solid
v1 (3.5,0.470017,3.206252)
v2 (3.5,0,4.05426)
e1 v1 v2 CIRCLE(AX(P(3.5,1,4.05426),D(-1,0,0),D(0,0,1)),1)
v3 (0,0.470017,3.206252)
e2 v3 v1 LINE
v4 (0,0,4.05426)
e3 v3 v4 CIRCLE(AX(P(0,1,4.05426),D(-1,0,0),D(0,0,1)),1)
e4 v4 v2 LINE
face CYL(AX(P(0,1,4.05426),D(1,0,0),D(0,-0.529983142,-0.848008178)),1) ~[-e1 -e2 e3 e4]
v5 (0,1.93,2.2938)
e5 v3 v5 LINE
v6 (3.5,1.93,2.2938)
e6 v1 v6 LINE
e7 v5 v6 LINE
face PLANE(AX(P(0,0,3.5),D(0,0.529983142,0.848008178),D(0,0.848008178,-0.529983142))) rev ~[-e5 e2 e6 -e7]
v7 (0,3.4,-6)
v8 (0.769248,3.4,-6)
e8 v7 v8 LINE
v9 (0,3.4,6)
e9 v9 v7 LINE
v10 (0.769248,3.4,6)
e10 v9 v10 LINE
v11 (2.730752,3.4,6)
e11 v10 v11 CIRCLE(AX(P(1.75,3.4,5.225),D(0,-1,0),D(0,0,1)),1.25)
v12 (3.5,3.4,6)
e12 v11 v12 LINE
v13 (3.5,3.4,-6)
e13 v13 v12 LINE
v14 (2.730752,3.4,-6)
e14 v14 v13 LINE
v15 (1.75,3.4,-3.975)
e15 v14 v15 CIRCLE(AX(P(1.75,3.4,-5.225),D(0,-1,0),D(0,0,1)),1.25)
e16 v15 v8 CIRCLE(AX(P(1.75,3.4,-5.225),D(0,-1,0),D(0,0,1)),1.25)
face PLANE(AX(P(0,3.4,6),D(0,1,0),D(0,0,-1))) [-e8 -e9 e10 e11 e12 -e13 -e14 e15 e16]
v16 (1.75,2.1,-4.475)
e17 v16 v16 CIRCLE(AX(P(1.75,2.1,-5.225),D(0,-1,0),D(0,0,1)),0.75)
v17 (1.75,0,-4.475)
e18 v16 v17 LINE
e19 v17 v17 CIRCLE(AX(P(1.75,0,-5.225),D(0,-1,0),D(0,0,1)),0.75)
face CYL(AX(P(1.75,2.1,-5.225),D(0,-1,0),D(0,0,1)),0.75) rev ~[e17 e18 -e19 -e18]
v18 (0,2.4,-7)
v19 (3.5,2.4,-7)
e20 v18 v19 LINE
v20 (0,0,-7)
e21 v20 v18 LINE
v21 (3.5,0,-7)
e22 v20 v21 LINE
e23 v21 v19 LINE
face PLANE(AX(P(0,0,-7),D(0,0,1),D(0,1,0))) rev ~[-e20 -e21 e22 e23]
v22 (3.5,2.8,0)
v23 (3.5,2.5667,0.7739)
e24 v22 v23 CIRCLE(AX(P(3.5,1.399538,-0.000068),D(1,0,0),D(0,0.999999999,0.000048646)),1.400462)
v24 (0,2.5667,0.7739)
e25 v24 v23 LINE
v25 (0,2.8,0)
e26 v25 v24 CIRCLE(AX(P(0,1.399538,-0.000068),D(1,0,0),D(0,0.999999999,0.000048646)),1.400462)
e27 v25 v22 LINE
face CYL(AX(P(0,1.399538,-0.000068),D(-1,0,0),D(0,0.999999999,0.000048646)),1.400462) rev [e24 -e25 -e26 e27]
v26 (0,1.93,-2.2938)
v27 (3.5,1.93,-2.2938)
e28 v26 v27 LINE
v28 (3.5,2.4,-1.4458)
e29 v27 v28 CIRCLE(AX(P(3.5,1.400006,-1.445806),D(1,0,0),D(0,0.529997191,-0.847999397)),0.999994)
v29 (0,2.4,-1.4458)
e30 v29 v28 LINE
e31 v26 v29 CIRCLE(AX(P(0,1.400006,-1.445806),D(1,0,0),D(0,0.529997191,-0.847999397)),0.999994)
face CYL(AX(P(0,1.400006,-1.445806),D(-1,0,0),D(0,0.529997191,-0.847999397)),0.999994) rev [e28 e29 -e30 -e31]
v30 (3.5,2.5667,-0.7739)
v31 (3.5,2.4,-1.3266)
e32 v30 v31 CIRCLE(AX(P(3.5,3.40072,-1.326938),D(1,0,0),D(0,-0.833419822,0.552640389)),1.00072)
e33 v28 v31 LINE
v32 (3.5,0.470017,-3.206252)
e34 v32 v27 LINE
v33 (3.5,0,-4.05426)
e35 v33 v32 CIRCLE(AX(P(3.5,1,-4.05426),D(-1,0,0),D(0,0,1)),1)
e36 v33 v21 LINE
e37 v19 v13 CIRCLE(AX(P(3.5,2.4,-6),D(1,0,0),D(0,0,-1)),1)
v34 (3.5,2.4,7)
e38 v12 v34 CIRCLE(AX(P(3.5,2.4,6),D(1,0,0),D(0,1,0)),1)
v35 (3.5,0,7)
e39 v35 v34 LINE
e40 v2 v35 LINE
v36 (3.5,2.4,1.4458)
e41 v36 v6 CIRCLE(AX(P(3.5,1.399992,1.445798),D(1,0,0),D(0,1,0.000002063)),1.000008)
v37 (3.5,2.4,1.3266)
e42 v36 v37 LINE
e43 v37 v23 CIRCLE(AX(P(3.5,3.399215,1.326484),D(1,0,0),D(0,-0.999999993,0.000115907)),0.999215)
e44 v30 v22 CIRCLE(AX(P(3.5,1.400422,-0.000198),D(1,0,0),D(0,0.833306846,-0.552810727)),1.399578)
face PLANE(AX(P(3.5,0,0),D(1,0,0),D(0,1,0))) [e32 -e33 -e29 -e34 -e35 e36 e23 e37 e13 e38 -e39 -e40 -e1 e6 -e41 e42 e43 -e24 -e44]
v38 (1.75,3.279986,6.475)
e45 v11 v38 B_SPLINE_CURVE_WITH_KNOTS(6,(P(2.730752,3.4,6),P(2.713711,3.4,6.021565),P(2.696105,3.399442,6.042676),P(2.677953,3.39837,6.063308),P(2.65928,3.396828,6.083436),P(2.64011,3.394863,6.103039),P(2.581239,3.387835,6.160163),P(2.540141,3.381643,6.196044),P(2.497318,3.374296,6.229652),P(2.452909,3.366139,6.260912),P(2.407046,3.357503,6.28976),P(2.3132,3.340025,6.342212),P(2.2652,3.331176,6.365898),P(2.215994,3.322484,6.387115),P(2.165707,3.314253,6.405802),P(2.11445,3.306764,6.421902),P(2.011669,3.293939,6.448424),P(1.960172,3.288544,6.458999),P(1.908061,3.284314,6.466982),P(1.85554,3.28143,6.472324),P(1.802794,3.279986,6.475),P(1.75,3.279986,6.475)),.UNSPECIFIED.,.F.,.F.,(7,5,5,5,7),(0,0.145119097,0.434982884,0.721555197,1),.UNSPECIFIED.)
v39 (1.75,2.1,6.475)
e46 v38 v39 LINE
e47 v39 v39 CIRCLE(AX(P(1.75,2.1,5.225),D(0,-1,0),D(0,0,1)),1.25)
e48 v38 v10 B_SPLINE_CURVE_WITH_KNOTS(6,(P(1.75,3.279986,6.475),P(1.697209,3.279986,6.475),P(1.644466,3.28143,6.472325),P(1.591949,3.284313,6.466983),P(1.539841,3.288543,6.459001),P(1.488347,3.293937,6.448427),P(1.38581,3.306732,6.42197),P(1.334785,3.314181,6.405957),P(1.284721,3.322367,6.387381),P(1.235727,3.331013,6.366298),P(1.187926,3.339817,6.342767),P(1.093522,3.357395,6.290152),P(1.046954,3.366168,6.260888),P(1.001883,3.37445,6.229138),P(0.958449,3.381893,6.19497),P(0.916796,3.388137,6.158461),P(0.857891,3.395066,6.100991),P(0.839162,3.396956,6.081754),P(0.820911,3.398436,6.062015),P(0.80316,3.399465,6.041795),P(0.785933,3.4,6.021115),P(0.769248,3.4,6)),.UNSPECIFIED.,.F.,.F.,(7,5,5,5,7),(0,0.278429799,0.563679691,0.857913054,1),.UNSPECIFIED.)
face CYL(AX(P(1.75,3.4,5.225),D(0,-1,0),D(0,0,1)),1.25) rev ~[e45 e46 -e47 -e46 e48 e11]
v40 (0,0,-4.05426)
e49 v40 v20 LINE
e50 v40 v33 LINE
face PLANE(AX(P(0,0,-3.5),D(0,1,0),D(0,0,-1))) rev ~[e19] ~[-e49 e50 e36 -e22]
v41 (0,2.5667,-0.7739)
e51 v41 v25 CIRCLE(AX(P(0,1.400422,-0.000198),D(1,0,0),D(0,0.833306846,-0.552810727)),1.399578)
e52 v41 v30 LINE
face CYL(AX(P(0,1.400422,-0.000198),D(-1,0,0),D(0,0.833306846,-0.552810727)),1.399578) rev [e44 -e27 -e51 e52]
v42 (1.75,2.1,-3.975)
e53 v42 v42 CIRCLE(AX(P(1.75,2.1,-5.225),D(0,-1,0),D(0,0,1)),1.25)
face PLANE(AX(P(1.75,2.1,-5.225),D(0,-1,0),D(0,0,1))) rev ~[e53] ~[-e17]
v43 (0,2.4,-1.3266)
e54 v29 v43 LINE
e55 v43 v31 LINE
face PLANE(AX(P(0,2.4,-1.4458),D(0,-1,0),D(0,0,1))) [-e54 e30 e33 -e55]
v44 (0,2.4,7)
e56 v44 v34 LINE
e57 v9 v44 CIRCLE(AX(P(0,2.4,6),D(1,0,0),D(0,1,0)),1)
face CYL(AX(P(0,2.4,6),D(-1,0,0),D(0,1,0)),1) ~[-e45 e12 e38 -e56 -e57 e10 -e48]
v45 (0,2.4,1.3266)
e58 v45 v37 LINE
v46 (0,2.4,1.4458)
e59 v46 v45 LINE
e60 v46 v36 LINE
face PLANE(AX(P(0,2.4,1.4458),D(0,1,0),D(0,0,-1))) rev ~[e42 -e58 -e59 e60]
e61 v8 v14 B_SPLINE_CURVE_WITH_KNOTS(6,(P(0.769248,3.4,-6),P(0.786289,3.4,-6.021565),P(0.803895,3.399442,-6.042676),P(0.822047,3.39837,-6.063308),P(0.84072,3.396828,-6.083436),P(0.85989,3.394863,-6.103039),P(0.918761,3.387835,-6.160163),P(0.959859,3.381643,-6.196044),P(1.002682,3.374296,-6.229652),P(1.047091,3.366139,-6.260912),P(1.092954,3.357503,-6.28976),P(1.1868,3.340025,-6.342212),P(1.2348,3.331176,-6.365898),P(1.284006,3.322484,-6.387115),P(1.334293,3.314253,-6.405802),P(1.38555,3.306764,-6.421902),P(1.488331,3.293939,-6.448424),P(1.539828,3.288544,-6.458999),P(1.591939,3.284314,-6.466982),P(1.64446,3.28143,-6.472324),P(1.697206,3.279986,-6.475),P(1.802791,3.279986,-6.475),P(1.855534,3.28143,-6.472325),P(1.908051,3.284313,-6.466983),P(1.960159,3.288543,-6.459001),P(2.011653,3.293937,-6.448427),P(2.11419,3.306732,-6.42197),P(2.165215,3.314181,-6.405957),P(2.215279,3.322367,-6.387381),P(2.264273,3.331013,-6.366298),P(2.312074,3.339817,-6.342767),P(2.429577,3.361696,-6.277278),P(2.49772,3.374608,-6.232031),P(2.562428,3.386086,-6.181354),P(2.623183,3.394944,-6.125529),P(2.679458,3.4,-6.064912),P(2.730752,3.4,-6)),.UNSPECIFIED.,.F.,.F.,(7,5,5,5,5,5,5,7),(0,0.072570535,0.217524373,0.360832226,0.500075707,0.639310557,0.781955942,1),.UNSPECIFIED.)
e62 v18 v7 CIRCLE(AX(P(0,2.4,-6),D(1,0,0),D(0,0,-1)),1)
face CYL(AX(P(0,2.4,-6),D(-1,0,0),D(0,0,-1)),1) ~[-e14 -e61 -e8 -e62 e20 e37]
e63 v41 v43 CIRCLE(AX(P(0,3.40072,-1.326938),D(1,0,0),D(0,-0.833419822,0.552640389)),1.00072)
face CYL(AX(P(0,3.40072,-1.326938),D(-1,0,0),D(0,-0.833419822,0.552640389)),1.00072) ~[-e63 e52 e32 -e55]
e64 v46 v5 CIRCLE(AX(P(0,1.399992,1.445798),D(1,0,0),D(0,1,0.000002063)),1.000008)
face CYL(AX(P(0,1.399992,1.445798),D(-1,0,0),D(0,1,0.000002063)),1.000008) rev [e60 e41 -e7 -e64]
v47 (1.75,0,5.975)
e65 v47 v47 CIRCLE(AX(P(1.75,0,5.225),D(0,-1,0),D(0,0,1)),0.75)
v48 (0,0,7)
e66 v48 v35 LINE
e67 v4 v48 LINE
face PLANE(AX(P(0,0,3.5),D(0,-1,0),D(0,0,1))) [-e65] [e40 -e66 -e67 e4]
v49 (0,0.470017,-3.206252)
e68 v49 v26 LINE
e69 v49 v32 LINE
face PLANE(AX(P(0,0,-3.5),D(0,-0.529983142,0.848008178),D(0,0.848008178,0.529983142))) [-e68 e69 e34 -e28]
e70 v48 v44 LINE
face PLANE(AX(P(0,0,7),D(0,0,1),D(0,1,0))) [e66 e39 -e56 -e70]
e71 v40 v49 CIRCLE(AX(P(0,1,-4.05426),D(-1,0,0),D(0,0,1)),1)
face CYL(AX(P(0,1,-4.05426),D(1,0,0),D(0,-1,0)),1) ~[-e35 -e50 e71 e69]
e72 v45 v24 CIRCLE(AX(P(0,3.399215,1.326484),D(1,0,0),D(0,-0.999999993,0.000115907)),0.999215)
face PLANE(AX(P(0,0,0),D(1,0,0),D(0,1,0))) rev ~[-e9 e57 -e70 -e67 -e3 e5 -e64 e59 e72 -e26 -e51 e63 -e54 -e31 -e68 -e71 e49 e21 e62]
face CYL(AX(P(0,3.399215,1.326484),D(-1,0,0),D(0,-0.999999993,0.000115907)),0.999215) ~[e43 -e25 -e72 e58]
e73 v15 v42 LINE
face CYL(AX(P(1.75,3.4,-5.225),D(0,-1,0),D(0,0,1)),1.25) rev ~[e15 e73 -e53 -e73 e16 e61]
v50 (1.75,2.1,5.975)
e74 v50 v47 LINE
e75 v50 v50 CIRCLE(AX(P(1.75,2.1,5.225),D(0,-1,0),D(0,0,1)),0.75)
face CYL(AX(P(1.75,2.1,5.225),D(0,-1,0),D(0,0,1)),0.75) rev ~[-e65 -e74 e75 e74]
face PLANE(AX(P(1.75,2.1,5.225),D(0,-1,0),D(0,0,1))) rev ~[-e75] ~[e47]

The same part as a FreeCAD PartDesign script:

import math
import FreeCAD as App
import Part
import Sketcher

V = App.Vector


def edges_at(feature, points):
    """Names of the edges that pass closest to the given points."""
    edges = feature.Shape.Edges
    near = lambda p: min(range(len(edges)), key=lambda i: edges[i].distToShape(Part.Vertex(*p))[0])
    return sorted({f"Edge{near(p) + 1}" for p in points})

doc = App.newDocument("Part")
params = doc.addObject("Spreadsheet::Sheet", "Params")
for row, (alias, value) in enumerate([
    ("sketch1_radius", "1 mm"),
    ("sketch1_radius2", "1.4 mm"),
    ("sketch1_height", "3.5 mm"),
    ("pad1_length", "3.5 mm"),
    ("sketch2_diameter", "1.5 mm"),
    ("hole_diameter", "1.5 mm"),
    ("hole_cbore_diameter", "2.5 mm"),
    ("hole_cbore_depth", "1.3 mm"),
    ("fillet_radius", "1 mm"),
], start=1):
    params.set(f"A{row}", alias)
    params.set(f"B{row}", "=" + value)
    params.setAlias(f"B{row}", alias)

body = doc.addObject("PartDesign::Body", "Body")

sketch1 = doc.addObject("Sketcher::SketchObject", "Sketch")
body.addObject(sketch1)
sketch1.AttachmentSupport = (doc.YZ_Plane, [""])
sketch1.MapMode = "FlatFace"
sketch1.addGeometry(Part.ArcOfCircle(Part.Circle(V(1.4, 0, 0), V(0, 0, 1), 1.4), math.radians(0), math.radians(34)), False)
sketch1.addGeometry(Part.ArcOfCircle(Part.Circle(V(1.4, 0, 0), V(0, 0, 1), 1.4), math.radians(-34), math.radians(0)), False)
sketch1.addGeometry(Part.ArcOfCircle(Part.Circle(V(3.4, -1.33, 0), V(0, 0, 1), 1), math.radians(146), math.radians(180)), False)
sketch1.addGeometry(Part.LineSegment(V(2.4, -1.33, 0), V(2.4, -1.45, 0)), False)
sketch1.addGeometry(Part.ArcOfCircle(Part.Circle(V(1.4, -1.45, 0), V(0, 0, 1), 1), math.radians(-58), math.radians(0)), False)
sketch1.addGeometry(Part.LineSegment(V(1.93, -2.29, 0), V(0, -3.5, 0)), False)
sketch1.addGeometry(Part.LineSegment(V(0, -3.5, 0), V(0, -7, 0)), False)
sketch1.addGeometry(Part.LineSegment(V(0, -7, 0), V(2.4, -7, 0)), False)
sketch1.addGeometry(Part.ArcOfCircle(Part.Circle(V(2.4, -6, 0), V(0, 0, 1), 1), math.radians(-90), math.radians(0)), False)
sketch1.addGeometry(Part.LineSegment(V(3.4, -6, 0), V(3.4, 6, 0)), False)
sketch1.addGeometry(Part.ArcOfCircle(Part.Circle(V(2.4, 6, 0), V(0, 0, 1), 1), math.radians(0), math.radians(90)), False)
sketch1.addGeometry(Part.LineSegment(V(2.4, 7, 0), V(0, 7, 0)), False)
sketch1.addGeometry(Part.LineSegment(V(0, 7, 0), V(0, 3.5, 0)), False)
sketch1.addGeometry(Part.LineSegment(V(0, 3.5, 0), V(1.93, 2.29, 0)), False)
sketch1.addGeometry(Part.ArcOfCircle(Part.Circle(V(1.4, 1.45, 0), V(0, 0, 1), 1), math.radians(0), math.radians(58)), False)
sketch1.addGeometry(Part.LineSegment(V(2.4, 1.45, 0), V(2.4, 1.33, 0)), False)
sketch1.addGeometry(Part.ArcOfCircle(Part.Circle(V(3.4, 1.33, 0), V(0, 0, 1), 1), math.radians(180), math.radians(214)), False)
sketch1.addConstraint(Sketcher.Constraint("Tangent", 0, 1, 1, 2))
sketch1.addConstraint(Sketcher.Constraint("Tangent", 1, 1, 2, 1))
sketch1.addConstraint(Sketcher.Constraint("Tangent", 2, 2, 3, 1))
sketch1.addConstraint(Sketcher.Constraint("Tangent", 3, 2, 4, 2))
sketch1.addConstraint(Sketcher.Constraint("Tangent", 4, 1, 5, 1))
sketch1.addConstraint(Sketcher.Constraint("Coincident", 5, 2, 6, 1))
sketch1.addConstraint(Sketcher.Constraint("Coincident", 6, 2, 7, 1))
sketch1.addConstraint(Sketcher.Constraint("Tangent", 7, 2, 8, 1))
sketch1.addConstraint(Sketcher.Constraint("Tangent", 8, 2, 9, 1))
sketch1.addConstraint(Sketcher.Constraint("Tangent", 9, 2, 10, 1))
sketch1.addConstraint(Sketcher.Constraint("Tangent", 10, 2, 11, 1))
sketch1.addConstraint(Sketcher.Constraint("Coincident", 11, 2, 12, 1))
sketch1.addConstraint(Sketcher.Constraint("Coincident", 12, 2, 13, 1))
sketch1.addConstraint(Sketcher.Constraint("Tangent", 13, 2, 14, 2))
sketch1.addConstraint(Sketcher.Constraint("Tangent", 14, 1, 15, 1))
sketch1.addConstraint(Sketcher.Constraint("Tangent", 15, 2, 16, 1))
sketch1.addConstraint(Sketcher.Constraint("Tangent", 16, 2, 0, 2))
sketch1.addConstraint(Sketcher.Constraint("Vertical", 3))
sketch1.addConstraint(Sketcher.Constraint("Vertical", 6))
sketch1.addConstraint(Sketcher.Constraint("Horizontal", 7))
sketch1.addConstraint(Sketcher.Constraint("Vertical", 9))
sketch1.addConstraint(Sketcher.Constraint("Horizontal", 11))
sketch1.addConstraint(Sketcher.Constraint("Vertical", 12))
sketch1.addConstraint(Sketcher.Constraint("Vertical", 15))
sketch1.addConstraint(Sketcher.Constraint("Equal", 0, 1))
sketch1.addConstraint(Sketcher.Constraint("Equal", 2, 4))
sketch1.addConstraint(Sketcher.Constraint("Equal", 4, 8))
sketch1.addConstraint(Sketcher.Constraint("Equal", 8, 10))
sketch1.addConstraint(Sketcher.Constraint("Equal", 10, 14))
sketch1.addConstraint(Sketcher.Constraint("Equal", 14, 16))
sketch1.addConstraint(Sketcher.Constraint("Symmetric", 6, 2, 11, 2, -1, 1))
sketch1.addConstraint(Sketcher.Constraint("Symmetric", 4, 3, 14, 3, -1))
sketch1.addConstraint(Sketcher.Constraint("Symmetric", 5, 2, 12, 2, -1))
sketch1.addConstraint(Sketcher.Constraint("PointOnObject", 0, 3, -1))
sketch1.addConstraint(Sketcher.Constraint("PointOnObject", 0, 1, -1))
sketch1.addConstraint(Sketcher.Constraint("Vertical", 1, 3, 4, 3))
sketch1.addConstraint(Sketcher.Constraint("Vertical", 10, 3, 2, 2))
sketch1.addConstraint(Sketcher.Constraint("Radius", 2, 1.0))
sketch1.addConstraint(Sketcher.Constraint("Radius", 0, 1.4))
sketch1.addConstraint(Sketcher.Constraint("DistanceY", 6, 2, 6, 1, 3.5))
sketch1.addConstraint(Sketcher.Constraint("DistanceY", 6, 2, -1, 1, 7.0))
sketch1.addConstraint(Sketcher.Constraint("DistanceX", -1, 1, 0, 1, 2.8))
sketch1.addConstraint(Sketcher.Constraint("DistanceX", -1, 1, 4, 1, 1.93))
sketch1.setExpression("Constraints[37]", "Params.sketch1_radius")
sketch1.setExpression("Constraints[38]", "Params.sketch1_radius2")
sketch1.setExpression("Constraints[39]", "Params.sketch1_height")
pad1 = doc.addObject("PartDesign::Pad", "Pad")
body.addObject(pad1)
pad1.Profile = sketch1
pad1.setExpression("Length", "Params.pad1_length")

sketch2 = doc.addObject("Sketcher::SketchObject", "Sketch001")
body.addObject(sketch2)
sketch2.AttachmentSupport = (doc.XZ_Plane, [""])
sketch2.MapMode = "FlatFace"
sketch2.AttachmentOffset = App.Placement(V(0, 0, -3.4), App.Rotation())
sketch2.addGeometry(Part.Circle(V(1.8, 5.2, 0), V(0, 0, 1), 0.8), False)
sketch2.addGeometry(Part.Circle(V(1.8, -5.2, 0), V(0, 0, 1), 0.8), False)
sketch2.addConstraint(Sketcher.Constraint("Equal", 0, 1))
sketch2.addConstraint(Sketcher.Constraint("Symmetric", 0, 3, 1, 3, -1))
sketch2.addConstraint(Sketcher.Constraint("Diameter", 0, 1.5))
sketch2.addConstraint(Sketcher.Constraint("DistanceX", -1, 1, 0, 3, 1.75))
sketch2.addConstraint(Sketcher.Constraint("DistanceY", 1, 3, 0, 3, 10.45))
sketch2.setExpression("Constraints[2]", "Params.sketch2_diameter")
doc.recompute()
hole = doc.addObject("PartDesign::Hole", "Hole")
body.addObject(hole)
hole.Profile = sketch2
hole.ThreadType = "None"
hole.setExpression("Diameter", "Params.hole_diameter")
hole.DepthType = "ThroughAll"
hole.HoleCutType = "Counterbore"
hole.setExpression("HoleCutDiameter", "Params.hole_cbore_diameter")
hole.setExpression("HoleCutDepth", "Params.hole_cbore_depth")
hole.Reversed = True
doc.recompute()

fillet = doc.addObject("PartDesign::Fillet", "Fillet")
body.addObject(fillet)
fillet.Base = (hole, edges_at(hole, [(1.75, 0, 3.5), (1.75, 0, -3.5)]))
fillet.setExpression("Radius", "Params.fillet_radius")

doc.recompute()
